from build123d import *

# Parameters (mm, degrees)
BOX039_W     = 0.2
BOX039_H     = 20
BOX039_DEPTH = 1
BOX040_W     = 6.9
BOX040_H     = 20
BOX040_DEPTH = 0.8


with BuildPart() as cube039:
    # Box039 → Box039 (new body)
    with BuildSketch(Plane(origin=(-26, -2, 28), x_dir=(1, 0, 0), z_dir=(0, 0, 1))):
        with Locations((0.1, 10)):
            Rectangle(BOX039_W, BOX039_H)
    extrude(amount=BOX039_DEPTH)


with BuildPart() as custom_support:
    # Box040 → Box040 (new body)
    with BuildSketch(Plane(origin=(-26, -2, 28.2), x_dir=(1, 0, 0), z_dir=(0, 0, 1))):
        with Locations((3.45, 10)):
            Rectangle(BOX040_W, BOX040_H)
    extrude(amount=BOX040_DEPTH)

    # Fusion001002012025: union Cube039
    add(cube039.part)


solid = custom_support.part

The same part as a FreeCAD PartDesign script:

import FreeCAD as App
import Part
import Sketcher
Q = App.Units.Quantity


def add_polygon(sketch, points):
    """Adds a closed chain of lines whose ends are joined by coincident constraints."""
    first, n = sketch.GeometryCount, len(points)
    for a, b in zip(points, points[1:] + points[:1]):
        sketch.addGeometry(Part.LineSegment(App.Vector(*a, 0), App.Vector(*b, 0)), False)
    for i in range(n):
        sketch.addConstraint(Sketcher.Constraint("Coincident", first + i, 2, first + (i + 1) % n, 1))

doc = App.newDocument("Part")
body = doc.addObject("PartDesign::Body", "Body")

sketch1 = body.newObject("Sketcher::SketchObject", "Sketch")
sketch1.AttachmentSupport = (doc.getObject("XY_Plane"), [""])
sketch1.MapMode = "FlatFace"
sketch1.AttachmentOffset = App.Placement(App.Vector(0, 0, 28), App.Rotation())
add_polygon(sketch1, [(-26, 18), (-26, -2), (-25.8, -2), (-25.8, 18)])
sketch1.addConstraint(Sketcher.Constraint("Vertical", 0))
sketch1.addConstraint(Sketcher.Constraint("Horizontal", 1))
sketch1.addConstraint(Sketcher.Constraint("Vertical", 2))
sketch1.addConstraint(Sketcher.Constraint("Horizontal", 3))
sketch1.addConstraint(Sketcher.Constraint("DistanceY", 0, 2, 0, 1, Q("20 mm")))
sketch1.addConstraint(Sketcher.Constraint("DistanceX", 1, 1, 1, 2, Q("0.2 mm")))
sketch1.addConstraint(Sketcher.Constraint("DistanceX", 0, 2, -1, 1, Q("26 mm")))
sketch1.addConstraint(Sketcher.Constraint("DistanceY", 0, 2, -1, 1, Q("2 mm")))
pad1 = body.newObject("PartDesign::Pad", "Pad")
pad1.Profile = sketch1
pad1.Length = 1
body2 = doc.addObject("PartDesign::Body", "Body001")

sketch2 = body2.newObject("Sketcher::SketchObject", "Sketch001")
sketch2.AttachmentSupport = (doc.getObject("XY_Plane001"), [""])
sketch2.MapMode = "FlatFace"
sketch2.AttachmentOffset = App.Placement(App.Vector(0, 0, 28.2), App.Rotation())
add_polygon(sketch2, [(-26, 18), (-26, -2), (-19, -2), (-19, 18)])
sketch2.addConstraint(Sketcher.Constraint("Vertical", 0))
sketch2.addConstraint(Sketcher.Constraint("Horizontal", 1))
sketch2.addConstraint(Sketcher.Constraint("Vertical", 2))
sketch2.addConstraint(Sketcher.Constraint("Horizontal", 3))
sketch2.addConstraint(Sketcher.Constraint("DistanceY", 0, 2, 0, 1, Q("20 mm")))
sketch2.addConstraint(Sketcher.Constraint("DistanceX", 1, 1, 1, 2, Q("6.9 mm")))
sketch2.addConstraint(Sketcher.Constraint("DistanceX", 0, 2, -1, 1, Q("26 mm")))
sketch2.addConstraint(Sketcher.Constraint("DistanceY", 0, 2, -1, 1, Q("2 mm")))
pad2 = body2.newObject("PartDesign::Pad", "Pad001")
pad2.Profile = sketch2
pad2.Length = 0.8
doc.recompute()

boolean = body2.newObject("PartDesign::Boolean", "Boolean")
boolean.Type = "Fuse"
boolean.addObjects([body])

doc.recompute()
